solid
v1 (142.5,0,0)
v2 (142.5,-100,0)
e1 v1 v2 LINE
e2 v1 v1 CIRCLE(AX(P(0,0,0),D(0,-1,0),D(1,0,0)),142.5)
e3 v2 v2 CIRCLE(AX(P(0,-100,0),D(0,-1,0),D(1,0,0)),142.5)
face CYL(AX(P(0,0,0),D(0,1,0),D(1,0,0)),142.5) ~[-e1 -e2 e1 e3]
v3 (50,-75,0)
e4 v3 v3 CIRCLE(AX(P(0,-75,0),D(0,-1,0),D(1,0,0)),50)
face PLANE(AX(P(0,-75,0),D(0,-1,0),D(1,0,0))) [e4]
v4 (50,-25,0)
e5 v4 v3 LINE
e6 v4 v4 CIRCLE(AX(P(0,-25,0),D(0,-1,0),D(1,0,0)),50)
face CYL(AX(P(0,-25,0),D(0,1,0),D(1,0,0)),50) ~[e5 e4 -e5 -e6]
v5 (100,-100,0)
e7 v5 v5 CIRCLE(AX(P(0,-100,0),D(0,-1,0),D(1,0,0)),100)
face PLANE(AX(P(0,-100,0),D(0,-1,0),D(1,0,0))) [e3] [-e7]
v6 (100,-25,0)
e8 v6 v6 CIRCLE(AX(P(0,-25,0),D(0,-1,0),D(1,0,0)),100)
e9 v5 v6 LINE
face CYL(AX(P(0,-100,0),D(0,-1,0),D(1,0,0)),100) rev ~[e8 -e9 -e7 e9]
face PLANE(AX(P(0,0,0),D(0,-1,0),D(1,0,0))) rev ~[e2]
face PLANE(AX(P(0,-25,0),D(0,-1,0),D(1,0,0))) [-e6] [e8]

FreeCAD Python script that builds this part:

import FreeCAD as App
import Part
import Sketcher
Q = App.Units.Quantity

doc = App.newDocument("Part")
body = doc.addObject("PartDesign::Body", "Body")

# Sketch on XZ plane
sketch1 = doc.addObject("Sketcher::SketchObject", "Sketch")
body.addObject(sketch1)
sketch1.AttachmentSupport = (doc.XZ_Plane, [""])
sketch1.MapMode = "FlatFace"
sketch1.addGeometry(Part.Circle(App.Vector(0, 0, 0), App.Vector(0, 0, 1), 142), False)
sketch1.addConstraint([
    Sketcher.Constraint("Coincident", 0, 3, -1, 1),
    Sketcher.Constraint("Diameter", 0, Q("285 mm")),
])
pad1 = doc.addObject("PartDesign::Pad", "Pad")
body.addObject(pad1)
pad1.Profile = sketch1
pad1.Length = 100

# Sketch on XZ plane
sketch2 = doc.addObject("Sketcher::SketchObject", "Sketch001")
body.addObject(sketch2)
sketch2.AttachmentSupport = (doc.XZ_Plane, [""])
sketch2.MapMode = "FlatFace"
sketch2.AttachmentOffset = App.Placement(App.Vector(0, 0, 100), App.Rotation())
sketch2.addGeometry(Part.Circle(App.Vector(0, 0, 0), App.Vector(0, 0, 1), 100), False)
sketch2.addConstraint([
    Sketcher.Constraint("Coincident", 0, 3, -1, 1),
    Sketcher.Constraint("Diameter", 0, Q("200 mm")),
])
pocket1 = doc.addObject("PartDesign::Pocket", "Pocket")
body.addObject(pocket1)
pocket1.Profile = sketch2
pocket1.Length = 75

# Sketch on XZ plane
sketch3 = doc.addObject("Sketcher::SketchObject", "Sketch002")
body.addObject(sketch3)
sketch3.AttachmentSupport = (doc.XZ_Plane, [""])
sketch3.MapMode = "FlatFace"
sketch3.AttachmentOffset = App.Placement(App.Vector(0, 0, 25), App.Rotation())
sketch3.addGeometry(Part.Circle(App.Vector(0, 0, 0), App.Vector(0, 0, 1), 50), False)
sketch3.addConstraint([
    Sketcher.Constraint("Coincident", 0, 3, -1, 1),
    Sketcher.Constraint("Diameter", 0, Q("100 mm")),
])
pad2 = doc.addObject("PartDesign::Pad", "Pad001")
body.addObject(pad2)
pad2.Profile = sketch3
pad2.Length = 50

doc.recompute()
